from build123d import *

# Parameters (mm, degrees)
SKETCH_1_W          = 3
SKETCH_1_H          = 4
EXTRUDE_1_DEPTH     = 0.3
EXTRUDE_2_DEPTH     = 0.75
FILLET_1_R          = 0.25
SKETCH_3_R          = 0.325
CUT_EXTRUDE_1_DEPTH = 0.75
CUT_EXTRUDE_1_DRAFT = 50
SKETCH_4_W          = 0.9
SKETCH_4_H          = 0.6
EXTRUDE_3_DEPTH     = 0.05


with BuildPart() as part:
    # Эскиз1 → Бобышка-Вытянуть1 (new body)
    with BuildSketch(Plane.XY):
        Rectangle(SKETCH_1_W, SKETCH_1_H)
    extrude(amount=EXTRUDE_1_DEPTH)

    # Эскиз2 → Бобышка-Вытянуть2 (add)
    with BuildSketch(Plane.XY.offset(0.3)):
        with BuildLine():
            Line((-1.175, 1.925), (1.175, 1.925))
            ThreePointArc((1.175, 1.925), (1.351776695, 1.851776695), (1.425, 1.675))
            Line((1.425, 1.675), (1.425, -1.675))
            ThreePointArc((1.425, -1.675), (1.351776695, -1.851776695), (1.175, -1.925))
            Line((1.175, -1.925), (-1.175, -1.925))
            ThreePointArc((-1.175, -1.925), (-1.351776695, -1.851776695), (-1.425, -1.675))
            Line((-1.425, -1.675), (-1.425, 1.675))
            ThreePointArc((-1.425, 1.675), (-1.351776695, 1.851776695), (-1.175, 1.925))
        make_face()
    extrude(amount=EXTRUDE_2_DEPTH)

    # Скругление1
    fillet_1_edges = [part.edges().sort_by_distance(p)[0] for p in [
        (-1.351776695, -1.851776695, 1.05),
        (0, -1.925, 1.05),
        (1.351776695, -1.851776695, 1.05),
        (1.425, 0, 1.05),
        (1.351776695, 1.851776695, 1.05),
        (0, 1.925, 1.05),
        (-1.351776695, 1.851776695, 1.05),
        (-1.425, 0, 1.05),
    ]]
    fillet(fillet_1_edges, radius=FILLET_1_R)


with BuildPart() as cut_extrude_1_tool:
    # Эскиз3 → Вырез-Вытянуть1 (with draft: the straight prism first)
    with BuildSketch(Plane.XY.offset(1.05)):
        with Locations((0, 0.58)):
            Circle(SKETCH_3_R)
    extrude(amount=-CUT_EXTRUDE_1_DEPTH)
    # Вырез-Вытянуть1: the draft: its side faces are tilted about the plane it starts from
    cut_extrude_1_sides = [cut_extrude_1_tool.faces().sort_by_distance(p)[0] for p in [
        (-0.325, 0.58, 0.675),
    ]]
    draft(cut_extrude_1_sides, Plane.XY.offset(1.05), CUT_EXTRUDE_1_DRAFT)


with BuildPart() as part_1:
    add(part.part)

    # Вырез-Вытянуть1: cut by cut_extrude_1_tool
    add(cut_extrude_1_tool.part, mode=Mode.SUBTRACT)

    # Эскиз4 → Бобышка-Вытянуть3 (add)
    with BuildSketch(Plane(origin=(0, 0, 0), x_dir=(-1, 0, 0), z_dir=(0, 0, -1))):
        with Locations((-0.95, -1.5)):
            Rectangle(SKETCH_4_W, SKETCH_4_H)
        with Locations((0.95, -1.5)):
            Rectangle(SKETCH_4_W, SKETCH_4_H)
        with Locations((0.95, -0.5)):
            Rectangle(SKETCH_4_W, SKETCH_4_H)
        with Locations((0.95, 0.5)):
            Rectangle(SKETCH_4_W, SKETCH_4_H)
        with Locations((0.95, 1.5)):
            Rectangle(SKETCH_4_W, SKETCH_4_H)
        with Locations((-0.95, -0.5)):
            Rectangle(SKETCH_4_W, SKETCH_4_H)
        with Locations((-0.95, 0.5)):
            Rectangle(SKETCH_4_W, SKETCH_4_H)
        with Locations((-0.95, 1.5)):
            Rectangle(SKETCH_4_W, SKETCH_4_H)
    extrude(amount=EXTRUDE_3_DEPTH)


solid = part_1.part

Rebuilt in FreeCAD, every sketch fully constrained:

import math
import FreeCAD as App
import Part
import Sketcher

V = App.Vector
Q = App.Units.Quantity


def edges_at(feature, points):
    """Names of the edges that pass closest to the given points."""
    edges = feature.Shape.Edges
    near = lambda p: min(range(len(edges)), key=lambda i: edges[i].distToShape(Part.Vertex(*p))[0])
    return sorted({f"Edge{near(p) + 1}" for p in points})


def faces_at(feature, points):
    """Names of the faces that lie closest to the given points."""
    faces = feature.Shape.Faces
    near = lambda p: min(range(len(faces)), key=lambda i: faces[i].distToShape(Part.Vertex(*p))[0])
    return sorted({f"Face{near(p) + 1}" for p in points})

doc = App.newDocument("Part")
body = doc.addObject("PartDesign::Body", "Body")

sketch1 = doc.addObject("Sketcher::SketchObject", "Sketch")
body.addObject(sketch1)
sketch1.AttachmentSupport = (doc.XY_Plane, [""])
sketch1.MapMode = "FlatFace"
sketch1.addGeometry([
    Part.LineSegment(V(-1.5, 2, 0), V(-1.5, -2, 0)),
    Part.LineSegment(V(-1.5, -2, 0), V(1.5, -2, 0)),
    Part.LineSegment(V(1.5, -2, 0), V(1.5, 2, 0)),
    Part.LineSegment(V(1.5, 2, 0), V(-1.5, 2, 0)),
], False)
sketch1.addConstraint([
    Sketcher.Constraint("Coincident", 0, 2, 1, 1),
    Sketcher.Constraint("Coincident", 1, 2, 2, 1),
    Sketcher.Constraint("Coincident", 2, 2, 3, 1),
    Sketcher.Constraint("Coincident", 3, 2, 0, 1),
    Sketcher.Constraint("Vertical", 0),
    Sketcher.Constraint("Horizontal", 1),
    Sketcher.Constraint("Vertical", 2),
    Sketcher.Constraint("Horizontal", 3),
    Sketcher.Constraint("Symmetric", 0, 2, 2, 2, -1, 1),
    Sketcher.Constraint("DistanceX", 1, 1, 1, 2, Q("3 mm")),
    Sketcher.Constraint("DistanceY", 0, 2, 0, 1, Q("4 mm")),
])
pad1 = doc.addObject("PartDesign::Pad", "Pad")
body.addObject(pad1)
pad1.Profile = sketch1
pad1.Length = 0.3

sketch2 = doc.addObject("Sketcher::SketchObject", "Sketch001")
body.addObject(sketch2)
sketch2.AttachmentSupport = (doc.XY_Plane, [""])
sketch2.MapMode = "FlatFace"
sketch2.AttachmentOffset = App.Placement(V(0, 0, 0.3), App.Rotation())
sketch2.addGeometry([
    Part.LineSegment(V(1.175, 1.925, 0), V(-1.175, 1.925, 0)),
    Part.ArcOfCircle(Part.Circle(V(-1.175, 1.675, 0), V(0, 0, 1), 0.25), math.radians(90), math.radians(180)),
    Part.LineSegment(V(-1.425, 1.675, 0), V(-1.425, -1.675, 0)),
    Part.ArcOfCircle(Part.Circle(V(-1.175, -1.675, 0), V(0, 0, 1), 0.25), math.radians(-180), math.radians(-90)),
    Part.LineSegment(V(-1.175, -1.925, 0), V(1.175, -1.925, 0)),
    Part.ArcOfCircle(Part.Circle(V(1.175, -1.675, 0), V(0, 0, 1), 0.25), math.radians(-90), math.radians(0)),
    Part.LineSegment(V(1.425, -1.675, 0), V(1.425, 1.675, 0)),
    Part.ArcOfCircle(Part.Circle(V(1.175, 1.675, 0), V(0, 0, 1), 0.25), math.radians(0), math.radians(90)),
], False)
sketch2.addConstraint([
    Sketcher.Constraint("Tangent", 0, 2, 1, 1),
    Sketcher.Constraint("Tangent", 1, 2, 2, 1),
    Sketcher.Constraint("Tangent", 2, 2, 3, 1),
    Sketcher.Constraint("Tangent", 3, 2, 4, 1),
    Sketcher.Constraint("Tangent", 4, 2, 5, 1),
    Sketcher.Constraint("Tangent", 5, 2, 6, 1),
    Sketcher.Constraint("Tangent", 6, 2, 7, 1),
    Sketcher.Constraint("Tangent", 7, 2, 0, 1),
    Sketcher.Constraint("Horizontal", 0),
    Sketcher.Constraint("Vertical", 2),
    Sketcher.Constraint("Horizontal", 4),
    Sketcher.Constraint("Vertical", 6),
    Sketcher.Constraint("Equal", 1, 3),
    Sketcher.Constraint("Equal", 3, 5),
    Sketcher.Constraint("Equal", 5, 7),
    Sketcher.Constraint("Symmetric", 1, 3, 5, 3, -1, 1),
    Sketcher.Constraint("Radius", 1, Q("0.25 mm")),
    Sketcher.Constraint("DistanceX", 0, 2, 0, 1, Q("2.35 mm")),
    Sketcher.Constraint("DistanceY", 2, 2, 2, 1, Q("3.35 mm")),
])
pad2 = doc.addObject("PartDesign::Pad", "Pad001")
body.addObject(pad2)
pad2.Profile = sketch2
pad2.Length = 0.75
doc.recompute()

fillet = doc.addObject("PartDesign::Fillet", "Fillet")
body.addObject(fillet)
fillet.Base = (pad2, edges_at(pad2, [
    (-1.352, -1.852, 1.05),
    (0, -1.925, 1.05),
    (1.352, -1.852, 1.05),
    (1.425, 0, 1.05),
    (1.352, 1.852, 1.05),
    (0, 1.925, 1.05),
    (-1.352, 1.852, 1.05),
    (-1.425, 0, 1.05),
]))
fillet.Radius = 0.25
body2 = doc.addObject("PartDesign::Body", "Body001")

sketch3 = doc.addObject("Sketcher::SketchObject", "Sketch002")
body2.addObject(sketch3)
sketch3.AttachmentSupport = (doc.getObject("XY_Plane001"), [""])
sketch3.MapMode = "FlatFace"
sketch3.AttachmentOffset = App.Placement(V(0, 0, 1.05), App.Rotation())
sketch3.addGeometry(Part.Circle(V(0, 0.58, 0), V(0, 0, 1), 0.325), False)
sketch3.addConstraint([
    Sketcher.Constraint("PointOnObject", 0, 3, -2),
    Sketcher.Constraint("Diameter", 0, Q("0.65 mm")),
    Sketcher.Constraint("DistanceY", -1, 1, 0, 3, Q("0.58 mm")),
])
pad3 = doc.addObject("PartDesign::Pad", "Pad002")
body2.addObject(pad3)
pad3.Profile = sketch3
pad3.Length = 0.75
pad3.Reversed = True
doc.recompute()

datumplane = doc.addObject("PartDesign::Plane", "DatumPlane")
body2.addObject(datumplane)
datumplane.AttachmentSupport = (doc.getObject("XY_Plane001"), [""])
datumplane.MapMode = "FlatFace"
datumplane.AttachmentOffset = App.Placement(V(0, 0, 1.05), App.Rotation())
draft = doc.addObject("PartDesign::Draft", "Draft")
body2.addObject(draft)
draft.Base = (pad3, faces_at(pad3, [(-0.325, 0.58, 0.675)]))
draft.NeutralPlane = (datumplane, [""])
draft.Angle = 50
draft.Reversed = False
doc.recompute()

boolean = doc.addObject("PartDesign::Boolean", "Boolean")
body.addObject(boolean)
boolean.Type = "Cut"
boolean.addObjects([body2])

sketch4 = doc.addObject("Sketcher::SketchObject", "Sketch003")
body.addObject(sketch4)
sketch4.AttachmentSupport = (doc.XY_Plane, [""])
sketch4.MapMode = "FlatFace"
sketch4.addGeometry([
    Part.LineSegment(V(1.4, -1.2, 0), V(1.4, -1.8, 0)),
    Part.LineSegment(V(1.4, -1.8, 0), V(0.5, -1.8, 0)),
    Part.LineSegment(V(0.5, -1.8, 0), V(0.5, -1.2, 0)),
    Part.LineSegment(V(0.5, -1.2, 0), V(1.4, -1.2, 0)),
    Part.LineSegment(V(-0.5, -1.2, 0), V(-0.5, -1.8, 0)),
    Part.LineSegment(V(-0.5, -1.8, 0), V(-1.4, -1.8, 0)),
    Part.LineSegment(V(-1.4, -1.8, 0), V(-1.4, -1.2, 0)),
    Part.LineSegment(V(-1.4, -1.2, 0), V(-0.5, -1.2, 0)),
    Part.LineSegment(V(-0.5, -0.2, 0), V(-0.5, -0.8, 0)),
    Part.LineSegment(V(-0.5, -0.8, 0), V(-1.4, -0.8, 0)),
    Part.LineSegment(V(-1.4, -0.8, 0), V(-1.4, -0.2, 0)),
    Part.LineSegment(V(-1.4, -0.2, 0), V(-0.5, -0.2, 0)),
    Part.LineSegment(V(-0.5, 0.8, 0), V(-0.5, 0.2, 0)),
    Part.LineSegment(V(-0.5, 0.2, 0), V(-1.4, 0.2, 0)),
    Part.LineSegment(V(-1.4, 0.2, 0), V(-1.4, 0.8, 0)),
    Part.LineSegment(V(-1.4, 0.8, 0), V(-0.5, 0.8, 0)),
    Part.LineSegment(V(-0.5, 1.8, 0), V(-0.5, 1.2, 0)),
    Part.LineSegment(V(-0.5, 1.2, 0), V(-1.4, 1.2, 0)),
    Part.LineSegment(V(-1.4, 1.2, 0), V(-1.4, 1.8, 0)),
    Part.LineSegment(V(-1.4, 1.8, 0), V(-0.5, 1.8, 0)),
    Part.LineSegment(V(1.4, -0.2, 0), V(1.4, -0.8, 0)),
    Part.LineSegment(V(1.4, -0.8, 0), V(0.5, -0.8, 0)),
    Part.LineSegment(V(0.5, -0.8, 0), V(0.5, -0.2, 0)),
    Part.LineSegment(V(0.5, -0.2, 0), V(1.4, -0.2, 0)),
    Part.LineSegment(V(1.4, 0.8, 0), V(1.4, 0.2, 0)),
    Part.LineSegment(V(1.4, 0.2, 0), V(0.5, 0.2, 0)),
    Part.LineSegment(V(0.5, 0.2, 0), V(0.5, 0.8, 0)),
    Part.LineSegment(V(0.5, 0.8, 0), V(1.4, 0.8, 0)),
    Part.LineSegment(V(1.4, 1.8, 0), V(1.4, 1.2, 0)),
    Part.LineSegment(V(1.4, 1.2, 0), V(0.5, 1.2, 0)),
    Part.LineSegment(V(0.5, 1.2, 0), V(0.5, 1.8, 0)),
    Part.LineSegment(V(0.5, 1.8, 0), V(1.4, 1.8, 0)),
], False)
sketch4.addConstraint([
    Sketcher.Constraint("Coincident", 0, 2, 1, 1),
    Sketcher.Constraint("Coincident", 1, 2, 2, 1),
    Sketcher.Constraint("Coincident", 2, 2, 3, 1),
    Sketcher.Constraint("Coincident", 3, 2, 0, 1),
    Sketcher.Constraint("Coincident", 4, 2, 5, 1),
    Sketcher.Constraint("Coincident", 5, 2, 6, 1),
    Sketcher.Constraint("Coincident", 6, 2, 7, 1),
    Sketcher.Constraint("Coincident", 7, 2, 4, 1),
    Sketcher.Constraint("Coincident", 8, 2, 9, 1),
    Sketcher.Constraint("Coincident", 9, 2, 10, 1),
    Sketcher.Constraint("Coincident", 10, 2, 11, 1),
    Sketcher.Constraint("Coincident", 11, 2, 8, 1),
    Sketcher.Constraint("Coincident", 12, 2, 13, 1),
    Sketcher.Constraint("Coincident", 13, 2, 14, 1),
    Sketcher.Constraint("Coincident", 14, 2, 15, 1),
    Sketcher.Constraint("Coincident", 15, 2, 12, 1),
    Sketcher.Constraint("Coincident", 16, 2, 17, 1),
    Sketcher.Constraint("Coincident", 17, 2, 18, 1),
    Sketcher.Constraint("Coincident", 18, 2, 19, 1),
    Sketcher.Constraint("Coincident", 19, 2, 16, 1),
    Sketcher.Constraint("Coincident", 20, 2, 21, 1),
    Sketcher.Constraint("Coincident", 21, 2, 22, 1),
    Sketcher.Constraint("Coincident", 22, 2, 23, 1),
    Sketcher.Constraint("Coincident", 23, 2, 20, 1),
    Sketcher.Constraint("Coincident", 24, 2, 25, 1),
    Sketcher.Constraint("Coincident", 25, 2, 26, 1),
    Sketcher.Constraint("Coincident", 26, 2, 27, 1),
    Sketcher.Constraint("Coincident", 27, 2, 24, 1),
    Sketcher.Constraint("Coincident", 28, 2, 29, 1),
    Sketcher.Constraint("Coincident", 29, 2, 30, 1),
    Sketcher.Constraint("Coincident", 30, 2, 31, 1),
    Sketcher.Constraint("Coincident", 31, 2, 28, 1),
    Sketcher.Constraint("Vertical", 0),
    Sketcher.Constraint("Horizontal", 1),
    Sketcher.Constraint("Vertical", 2),
    Sketcher.Constraint("Horizontal", 3),
    Sketcher.Constraint("Vertical", 4),
    Sketcher.Constraint("Horizontal", 5),
    Sketcher.Constraint("Vertical", 6),
    Sketcher.Constraint("Horizontal", 7),
    Sketcher.Constraint("Vertical", 8),
    Sketcher.Constraint("Horizontal", 9),
    Sketcher.Constraint("Vertical", 10),
    Sketcher.Constraint("Horizontal", 11),
    Sketcher.Constraint("Vertical", 12),
    Sketcher.Constraint("Horizontal", 13),
    Sketcher.Constraint("Vertical", 14),
    Sketcher.Constraint("Horizontal", 15),
    Sketcher.Constraint("Vertical", 16),
    Sketcher.Constraint("Horizontal", 17),
    Sketcher.Constraint("Vertical", 18),
    Sketcher.Constraint("Horizontal", 19),
    Sketcher.Constraint("Vertical", 20),
    Sketcher.Constraint("Horizontal", 21),
    Sketcher.Constraint("Vertical", 22),
    Sketcher.Constraint("Horizontal", 23),
    Sketcher.Constraint("Vertical", 24),
    Sketcher.Constraint("Horizontal", 25),
    Sketcher.Constraint("Vertical", 26),
    Sketcher.Constraint("Horizontal", 27),
    Sketcher.Constraint("Vertical", 28),
    Sketcher.Constraint("Horizontal", 29),
    Sketcher.Constraint("Vertical", 30),
    Sketcher.Constraint("Horizontal", 31),
    Sketcher.Constraint("Symmetric", 2, 2, 16, 2, -1, 1),
    Sketcher.Constraint("Symmetric", 0, 2, 18, 2, -1, 1),
    Sketcher.Constraint("Symmetric", 14, 2, 20, 2, -1, 1),
    Sketcher.Constraint("Symmetric", 12, 2, 22, 2, -1, 1),
    Sketcher.Constraint("Symmetric", 10, 2, 24, 2, -1, 1),
    Sketcher.Constraint("Symmetric", 8, 2, 26, 2, -1, 1),
    Sketcher.Constraint("Symmetric", 6, 2, 28, 2, -1, 1),
    Sketcher.Constraint("Symmetric", 4, 2, 30, 2, -1, 1),
    Sketcher.Constraint("Symmetric", 1, 2, 4, 2, -2),
    Sketcher.Constraint("Symmetric", 3, 2, 6, 2, -2),
    Sketcher.Constraint("Symmetric", 9, 2, 20, 2, -2),
    Sketcher.Constraint("Symmetric", 11, 2, 22, 2, -2),
    Sketcher.Constraint("Vertical", 7, 2, 8, 2),
    Sketcher.Constraint("Vertical", 6, 2, 9, 2),
    Sketcher.Constraint("Equal", 6, 8),
    Sketcher.Constraint("DistanceX", 1, 2, 1, 1, Q("0.9 mm")),
    Sketcher.Constraint("DistanceY", 0, 2, 0, 1, Q("0.6 mm")),
    Sketcher.Constraint("DistanceX", 4, 2, 1, 2, Q("1 mm")),
    Sketcher.Constraint("DistanceY", 4, 2, 8, 2, Q("1 mm")),
    Sketcher.Constraint("DistanceY", 8, 2, 12, 2, Q("1 mm")),
])
pad4 = doc.addObject("PartDesign::Pad", "Pad003")
body.addObject(pad4)
pad4.Profile = sketch4
pad4.Length = 0.05
pad4.Reversed = True

doc.recompute()
